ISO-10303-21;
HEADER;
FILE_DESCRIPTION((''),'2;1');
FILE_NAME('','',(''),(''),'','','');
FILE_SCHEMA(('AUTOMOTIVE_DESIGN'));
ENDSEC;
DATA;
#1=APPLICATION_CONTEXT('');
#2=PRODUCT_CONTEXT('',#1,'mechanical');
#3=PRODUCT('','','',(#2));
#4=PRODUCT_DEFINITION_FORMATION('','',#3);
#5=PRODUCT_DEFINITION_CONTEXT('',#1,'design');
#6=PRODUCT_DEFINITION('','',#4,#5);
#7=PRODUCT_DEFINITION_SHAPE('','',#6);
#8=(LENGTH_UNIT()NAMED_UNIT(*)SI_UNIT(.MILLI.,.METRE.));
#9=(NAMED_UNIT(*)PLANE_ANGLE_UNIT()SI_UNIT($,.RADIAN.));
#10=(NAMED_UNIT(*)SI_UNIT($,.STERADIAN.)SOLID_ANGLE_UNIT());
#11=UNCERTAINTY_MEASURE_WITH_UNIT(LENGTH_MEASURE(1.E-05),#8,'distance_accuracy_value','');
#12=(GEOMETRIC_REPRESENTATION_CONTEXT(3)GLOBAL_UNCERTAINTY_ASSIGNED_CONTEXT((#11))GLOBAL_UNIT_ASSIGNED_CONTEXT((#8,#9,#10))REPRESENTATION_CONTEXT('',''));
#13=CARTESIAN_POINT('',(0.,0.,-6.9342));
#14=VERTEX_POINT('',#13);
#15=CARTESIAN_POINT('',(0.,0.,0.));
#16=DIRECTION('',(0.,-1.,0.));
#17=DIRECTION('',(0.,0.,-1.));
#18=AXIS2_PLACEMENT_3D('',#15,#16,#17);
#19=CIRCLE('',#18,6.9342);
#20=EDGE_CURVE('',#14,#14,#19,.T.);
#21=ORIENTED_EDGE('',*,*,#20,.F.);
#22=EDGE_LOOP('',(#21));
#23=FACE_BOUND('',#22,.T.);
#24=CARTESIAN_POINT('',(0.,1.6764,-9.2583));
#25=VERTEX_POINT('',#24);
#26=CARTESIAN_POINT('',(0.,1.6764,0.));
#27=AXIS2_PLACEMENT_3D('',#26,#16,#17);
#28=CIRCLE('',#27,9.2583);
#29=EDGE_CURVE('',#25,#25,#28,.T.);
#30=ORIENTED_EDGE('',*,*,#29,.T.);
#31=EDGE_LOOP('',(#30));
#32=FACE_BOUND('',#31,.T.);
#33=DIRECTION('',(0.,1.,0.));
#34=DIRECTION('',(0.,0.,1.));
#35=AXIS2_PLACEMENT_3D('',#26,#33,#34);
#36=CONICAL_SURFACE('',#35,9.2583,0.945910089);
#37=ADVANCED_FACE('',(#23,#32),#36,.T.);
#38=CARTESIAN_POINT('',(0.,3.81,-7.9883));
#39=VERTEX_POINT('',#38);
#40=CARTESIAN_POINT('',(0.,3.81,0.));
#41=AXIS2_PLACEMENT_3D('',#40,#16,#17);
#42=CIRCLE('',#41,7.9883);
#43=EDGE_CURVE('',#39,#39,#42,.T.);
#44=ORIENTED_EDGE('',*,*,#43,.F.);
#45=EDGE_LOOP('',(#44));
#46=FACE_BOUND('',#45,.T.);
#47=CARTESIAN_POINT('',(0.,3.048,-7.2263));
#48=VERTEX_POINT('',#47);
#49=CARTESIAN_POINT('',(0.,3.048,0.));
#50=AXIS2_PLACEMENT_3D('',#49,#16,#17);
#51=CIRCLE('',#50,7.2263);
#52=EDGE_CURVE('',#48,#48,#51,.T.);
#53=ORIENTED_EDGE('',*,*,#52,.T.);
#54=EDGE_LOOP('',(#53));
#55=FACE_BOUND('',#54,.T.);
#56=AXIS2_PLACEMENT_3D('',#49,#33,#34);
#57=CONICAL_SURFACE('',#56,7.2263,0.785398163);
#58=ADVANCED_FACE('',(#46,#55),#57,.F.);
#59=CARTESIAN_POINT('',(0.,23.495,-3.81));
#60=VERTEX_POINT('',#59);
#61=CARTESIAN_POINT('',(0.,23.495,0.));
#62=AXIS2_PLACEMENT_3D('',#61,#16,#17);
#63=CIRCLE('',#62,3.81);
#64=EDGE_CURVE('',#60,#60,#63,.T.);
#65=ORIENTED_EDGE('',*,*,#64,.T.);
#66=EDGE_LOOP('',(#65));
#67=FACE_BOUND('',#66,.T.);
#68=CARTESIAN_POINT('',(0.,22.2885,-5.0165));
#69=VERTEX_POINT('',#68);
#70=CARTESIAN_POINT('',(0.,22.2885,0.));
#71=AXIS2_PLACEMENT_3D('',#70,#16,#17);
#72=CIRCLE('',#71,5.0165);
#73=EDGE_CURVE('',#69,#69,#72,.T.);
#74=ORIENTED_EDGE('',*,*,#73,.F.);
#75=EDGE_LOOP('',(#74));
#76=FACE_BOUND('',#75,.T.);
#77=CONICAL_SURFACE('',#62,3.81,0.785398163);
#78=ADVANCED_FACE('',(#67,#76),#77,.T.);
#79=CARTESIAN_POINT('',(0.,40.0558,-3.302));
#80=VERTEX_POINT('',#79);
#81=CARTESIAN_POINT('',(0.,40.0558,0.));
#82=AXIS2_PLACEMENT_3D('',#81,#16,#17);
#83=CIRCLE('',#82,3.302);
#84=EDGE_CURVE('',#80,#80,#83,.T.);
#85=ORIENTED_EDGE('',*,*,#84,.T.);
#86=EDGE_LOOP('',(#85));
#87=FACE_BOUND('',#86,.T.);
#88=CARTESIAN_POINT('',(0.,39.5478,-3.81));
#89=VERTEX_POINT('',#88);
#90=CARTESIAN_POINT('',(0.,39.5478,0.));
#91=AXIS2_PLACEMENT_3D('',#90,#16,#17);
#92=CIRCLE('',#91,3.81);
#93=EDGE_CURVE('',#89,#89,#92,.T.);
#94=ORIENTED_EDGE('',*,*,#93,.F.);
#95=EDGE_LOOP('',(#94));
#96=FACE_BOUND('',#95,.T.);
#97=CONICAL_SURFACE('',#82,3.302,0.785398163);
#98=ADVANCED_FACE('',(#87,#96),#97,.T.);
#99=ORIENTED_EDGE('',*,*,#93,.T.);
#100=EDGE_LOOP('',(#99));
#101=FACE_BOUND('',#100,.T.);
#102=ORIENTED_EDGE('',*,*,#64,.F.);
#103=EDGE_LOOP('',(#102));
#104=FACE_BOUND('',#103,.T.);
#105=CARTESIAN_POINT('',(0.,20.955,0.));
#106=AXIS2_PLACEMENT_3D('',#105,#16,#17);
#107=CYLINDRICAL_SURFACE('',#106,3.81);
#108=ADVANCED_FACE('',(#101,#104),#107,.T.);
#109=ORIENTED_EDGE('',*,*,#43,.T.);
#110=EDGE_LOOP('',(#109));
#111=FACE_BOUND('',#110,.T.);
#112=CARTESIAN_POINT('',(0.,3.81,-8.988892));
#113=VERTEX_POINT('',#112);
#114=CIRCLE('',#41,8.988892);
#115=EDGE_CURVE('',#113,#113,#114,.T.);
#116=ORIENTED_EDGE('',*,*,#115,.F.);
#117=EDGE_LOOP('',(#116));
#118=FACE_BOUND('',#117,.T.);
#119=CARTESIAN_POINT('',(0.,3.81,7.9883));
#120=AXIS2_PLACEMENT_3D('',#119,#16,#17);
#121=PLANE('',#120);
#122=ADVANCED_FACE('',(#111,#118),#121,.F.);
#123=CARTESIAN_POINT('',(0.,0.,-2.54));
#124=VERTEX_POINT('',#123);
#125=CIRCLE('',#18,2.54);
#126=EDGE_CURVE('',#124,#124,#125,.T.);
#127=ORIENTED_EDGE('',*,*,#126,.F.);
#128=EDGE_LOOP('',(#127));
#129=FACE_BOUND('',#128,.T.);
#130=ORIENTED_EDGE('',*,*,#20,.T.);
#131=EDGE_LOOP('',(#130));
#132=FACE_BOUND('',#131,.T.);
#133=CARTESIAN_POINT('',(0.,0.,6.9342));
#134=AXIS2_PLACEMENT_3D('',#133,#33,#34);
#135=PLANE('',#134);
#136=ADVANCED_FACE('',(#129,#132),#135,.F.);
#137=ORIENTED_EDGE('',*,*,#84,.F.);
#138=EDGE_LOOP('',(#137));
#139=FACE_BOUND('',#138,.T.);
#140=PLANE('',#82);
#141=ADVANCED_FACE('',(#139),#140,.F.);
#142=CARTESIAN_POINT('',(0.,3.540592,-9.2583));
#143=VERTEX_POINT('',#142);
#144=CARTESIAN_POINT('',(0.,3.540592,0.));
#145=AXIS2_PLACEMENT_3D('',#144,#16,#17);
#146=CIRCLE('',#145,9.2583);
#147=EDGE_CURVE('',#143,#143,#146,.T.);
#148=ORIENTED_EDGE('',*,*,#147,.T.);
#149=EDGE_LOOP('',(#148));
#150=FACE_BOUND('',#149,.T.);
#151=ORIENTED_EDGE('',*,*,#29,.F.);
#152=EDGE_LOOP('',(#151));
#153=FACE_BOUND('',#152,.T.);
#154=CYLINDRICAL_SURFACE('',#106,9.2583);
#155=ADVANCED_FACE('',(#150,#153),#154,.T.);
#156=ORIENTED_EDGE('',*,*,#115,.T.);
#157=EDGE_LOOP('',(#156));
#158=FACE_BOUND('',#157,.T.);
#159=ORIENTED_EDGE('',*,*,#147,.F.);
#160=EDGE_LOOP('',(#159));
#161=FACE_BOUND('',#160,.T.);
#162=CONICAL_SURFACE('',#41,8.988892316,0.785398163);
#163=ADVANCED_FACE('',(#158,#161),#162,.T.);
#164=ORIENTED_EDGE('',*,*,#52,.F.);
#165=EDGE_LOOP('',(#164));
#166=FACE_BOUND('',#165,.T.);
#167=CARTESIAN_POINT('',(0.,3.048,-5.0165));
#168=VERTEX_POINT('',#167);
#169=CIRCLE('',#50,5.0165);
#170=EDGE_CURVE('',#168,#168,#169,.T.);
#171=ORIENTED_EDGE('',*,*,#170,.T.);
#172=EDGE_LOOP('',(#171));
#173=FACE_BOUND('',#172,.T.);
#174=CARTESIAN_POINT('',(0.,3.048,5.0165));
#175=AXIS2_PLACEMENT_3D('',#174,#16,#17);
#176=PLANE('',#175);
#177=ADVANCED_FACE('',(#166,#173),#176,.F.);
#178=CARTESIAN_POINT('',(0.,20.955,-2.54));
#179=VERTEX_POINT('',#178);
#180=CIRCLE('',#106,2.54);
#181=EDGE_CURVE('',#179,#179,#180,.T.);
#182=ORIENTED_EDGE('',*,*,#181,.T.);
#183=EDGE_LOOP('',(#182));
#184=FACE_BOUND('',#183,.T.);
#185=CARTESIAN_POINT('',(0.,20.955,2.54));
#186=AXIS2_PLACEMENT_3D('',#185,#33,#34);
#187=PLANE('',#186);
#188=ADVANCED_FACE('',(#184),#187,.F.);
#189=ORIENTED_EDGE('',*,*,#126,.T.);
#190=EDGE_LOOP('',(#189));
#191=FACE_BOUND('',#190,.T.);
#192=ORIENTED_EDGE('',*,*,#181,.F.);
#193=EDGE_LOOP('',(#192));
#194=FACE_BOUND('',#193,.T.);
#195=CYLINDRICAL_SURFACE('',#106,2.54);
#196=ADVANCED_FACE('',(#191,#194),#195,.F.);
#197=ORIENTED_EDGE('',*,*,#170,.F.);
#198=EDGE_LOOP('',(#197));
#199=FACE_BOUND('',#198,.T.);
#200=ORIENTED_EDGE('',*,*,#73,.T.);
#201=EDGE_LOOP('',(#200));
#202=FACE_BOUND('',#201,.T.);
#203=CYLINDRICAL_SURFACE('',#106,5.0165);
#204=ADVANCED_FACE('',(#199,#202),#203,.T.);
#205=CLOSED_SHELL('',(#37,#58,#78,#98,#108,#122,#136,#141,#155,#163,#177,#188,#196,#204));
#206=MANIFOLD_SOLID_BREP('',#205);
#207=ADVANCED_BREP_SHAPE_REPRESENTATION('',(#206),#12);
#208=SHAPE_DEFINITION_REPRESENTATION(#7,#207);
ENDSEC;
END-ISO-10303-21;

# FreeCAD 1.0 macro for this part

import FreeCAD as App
import Part
import Sketcher
Q = App.Units.Quantity

doc = App.newDocument("Part")
body = doc.addObject("PartDesign::Body", "Body")

# Sketch on YZ plane
sketch1 = doc.addObject("Sketcher::SketchObject", "Sketch")
body.addObject(sketch1)
sketch1.AttachmentSupport = (doc.YZ_Plane, [""])
sketch1.MapMode = "FlatFace"
sketch1.addGeometry([
    Part.LineSegment(App.Vector(40.0558, 0, 0), App.Vector(40.0558, 3.302, 0)),  # 0
    Part.LineSegment(App.Vector(40.0558, 3.302, 0), App.Vector(39.5478, 3.81, 0)),  # 1
    Part.LineSegment(App.Vector(39.5478, 3.81, 0), App.Vector(23.495, 3.81, 0)),  # 2
    Part.LineSegment(App.Vector(23.495, 3.81, 0), App.Vector(22.2885, 5.0165, 0)),  # 3
    Part.LineSegment(App.Vector(22.2885, 5.0165, 0), App.Vector(3.048, 5.0165, 0)),  # 4
    Part.LineSegment(App.Vector(3.048, 5.0165, 0), App.Vector(3.048, 7.2263, 0)),  # 5
    Part.LineSegment(App.Vector(3.048, 7.2263, 0), App.Vector(3.81, 7.9883, 0)),  # 6
    Part.LineSegment(App.Vector(3.81, 7.9883, 0), App.Vector(3.81, 8.988892, 0)),  # 7
    Part.LineSegment(App.Vector(3.81, 8.988892, 0), App.Vector(3.540592, 9.2583, 0)),  # 8
    Part.LineSegment(App.Vector(3.540592, 9.2583, 0), App.Vector(1.6764, 9.2583, 0)),  # 9
    Part.LineSegment(App.Vector(1.6764, 9.2583, 0), App.Vector(0, 6.9342, 0)),  # 10
    Part.LineSegment(App.Vector(0, 6.9342, 0), App.Vector(0, 2.54, 0)),  # 11
    Part.LineSegment(App.Vector(0, 2.54, 0), App.Vector(20.955, 2.54, 0)),  # 12
    Part.LineSegment(App.Vector(20.955, 2.54, 0), App.Vector(20.955, 0, 0)),  # 13
    Part.LineSegment(App.Vector(20.955, 0, 0), App.Vector(40.0558, 0, 0)),  # 14
], False)
sketch1.addConstraint([
    Sketcher.Constraint("Coincident", 0, 2, 1, 1),
    Sketcher.Constraint("Coincident", 1, 2, 2, 1),
    Sketcher.Constraint("Coincident", 2, 2, 3, 1),
    Sketcher.Constraint("Coincident", 3, 2, 4, 1),
    Sketcher.Constraint("Coincident", 4, 2, 5, 1),
    Sketcher.Constraint("Coincident", 5, 2, 6, 1),
    Sketcher.Constraint("Coincident", 6, 2, 7, 1),
    Sketcher.Constraint("Coincident", 7, 2, 8, 1),
    Sketcher.Constraint("Coincident", 8, 2, 9, 1),
    Sketcher.Constraint("Coincident", 9, 2, 10, 1),
    Sketcher.Constraint("Coincident", 10, 2, 11, 1),
    Sketcher.Constraint("Coincident", 11, 2, 12, 1),
    Sketcher.Constraint("Coincident", 12, 2, 13, 1),
    Sketcher.Constraint("Coincident", 13, 2, 14, 1),
    Sketcher.Constraint("Coincident", 14, 2, 0, 1),
    Sketcher.Constraint("Vertical", 0),
    Sketcher.Constraint("Horizontal", 2),
    Sketcher.Constraint("Horizontal", 4),
    Sketcher.Constraint("Vertical", 5),
    Sketcher.Constraint("Vertical", 7),
    Sketcher.Constraint("Horizontal", 9),
    Sketcher.Constraint("Vertical", 11),
    Sketcher.Constraint("Horizontal", 12),
    Sketcher.Constraint("Vertical", 13),
    Sketcher.Constraint("Horizontal", 14),
    Sketcher.Constraint("PointOnObject", 10, 2, -2),
    Sketcher.Constraint("PointOnObject", 13, 2, -1),
    Sketcher.Constraint("Parallel", 1, 3),
    Sketcher.Constraint("Perpendicular", 3, 6),
    Sketcher.Constraint("Perpendicular", 6, 8),
    Sketcher.Constraint("DistanceY", 13, 2, 13, 1, Q("0.1 in")),
    Sketcher.Constraint("Angle", 1, Q("135 deg")),
    Sketcher.Constraint("DistanceY", 0, 1, 0, 2, Q("0.13 in")),
    Sketcher.Constraint("DistanceX", 12, 2, 2, 2, Q("0.1 in")),
    Sketcher.Constraint("DistanceX", 2, 2, 2, 1, Q("0.632 in")),
    Sketcher.Constraint("DistanceX", 12, 1, 12, 2, Q("0.825 in")),
    Sketcher.Constraint("DistanceX", 14, 1, 14, 2, Q("0.752 in")),
    Sketcher.Constraint("DistanceY", 5, 1, 5, 2, Q("0.087 in")),
    Sketcher.Constraint("DistanceY", 11, 2, 11, 1, Q("0.173 in")),
    Sketcher.Constraint("DistanceX", -1, 1, 4, 2, Q("0.12 in")),
    Sketcher.Constraint("DistanceX", -1, 1, 6, 2, Q("0.15 in")),
    Sketcher.Constraint("DistanceY", 6, 2, 8, 2, Q("0.05 in")),
    Sketcher.Constraint("Distance", 8, Q("0.015 in")),
    Sketcher.Constraint("DistanceX", 4, 2, 4, 1, Q("0.7575 in")),
    Sketcher.Constraint("DistanceX", -1, 1, 9, 2, Q("0.066 in")),
])
revolution = doc.addObject("PartDesign::Revolution", "Revolution")
body.addObject(revolution)
revolution.Profile = sketch1
revolution.ReferenceAxis = (sketch1, ["H_Axis"])
revolution.Angle = 360

doc.recompute()
